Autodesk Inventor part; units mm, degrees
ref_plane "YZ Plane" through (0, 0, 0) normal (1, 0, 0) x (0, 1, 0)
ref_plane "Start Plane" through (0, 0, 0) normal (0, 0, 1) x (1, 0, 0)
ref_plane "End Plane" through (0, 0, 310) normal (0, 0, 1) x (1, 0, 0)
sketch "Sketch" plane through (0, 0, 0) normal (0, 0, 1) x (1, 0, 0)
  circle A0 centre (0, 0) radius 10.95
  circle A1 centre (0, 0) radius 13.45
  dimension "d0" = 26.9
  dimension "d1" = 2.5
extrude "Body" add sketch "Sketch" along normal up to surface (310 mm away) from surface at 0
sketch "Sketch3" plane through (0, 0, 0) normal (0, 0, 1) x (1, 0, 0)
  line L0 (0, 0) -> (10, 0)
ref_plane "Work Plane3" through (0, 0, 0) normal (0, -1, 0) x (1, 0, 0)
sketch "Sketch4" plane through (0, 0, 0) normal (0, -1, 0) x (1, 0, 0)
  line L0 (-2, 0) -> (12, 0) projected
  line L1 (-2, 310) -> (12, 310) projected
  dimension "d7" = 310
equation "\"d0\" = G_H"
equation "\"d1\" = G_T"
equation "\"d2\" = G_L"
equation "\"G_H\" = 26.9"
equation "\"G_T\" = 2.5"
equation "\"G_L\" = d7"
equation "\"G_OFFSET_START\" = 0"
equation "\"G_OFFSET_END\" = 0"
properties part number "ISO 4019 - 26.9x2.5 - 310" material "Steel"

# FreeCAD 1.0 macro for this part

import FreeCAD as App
import Part
import Sketcher
from FreeCAD import Vector

doc = App.newDocument("Part")
body = doc.addObject("PartDesign::Body", "Body")

# Sketch on XY plane
sketch1 = body.newObject("Sketcher::SketchObject", "Sketch")
sketch1.AttachmentSupport = (doc.getObject("XY_Plane"), [""])
sketch1.MapMode = "FlatFace"
sketch1.addGeometry([
    Part.Circle(Vector(0, 0, 0), Vector(0, 0, 1), 13),
    Part.Circle(Vector(0, 0, 0), Vector(0, 0, 1), 11),
], False)
sketch1.addConstraint([
    Sketcher.Constraint("Coincident", 0, 3, -1, 1),
    Sketcher.Constraint("Coincident", 1, 3, -1, 1),
    Sketcher.Constraint("Diameter", 0, 26.9),
    Sketcher.Constraint("Diameter", 1, 21.9),
])
pad1 = body.newObject("PartDesign::Pad", "Pad")
pad1.Profile = sketch1
pad1.Length = 310

doc.recompute()
